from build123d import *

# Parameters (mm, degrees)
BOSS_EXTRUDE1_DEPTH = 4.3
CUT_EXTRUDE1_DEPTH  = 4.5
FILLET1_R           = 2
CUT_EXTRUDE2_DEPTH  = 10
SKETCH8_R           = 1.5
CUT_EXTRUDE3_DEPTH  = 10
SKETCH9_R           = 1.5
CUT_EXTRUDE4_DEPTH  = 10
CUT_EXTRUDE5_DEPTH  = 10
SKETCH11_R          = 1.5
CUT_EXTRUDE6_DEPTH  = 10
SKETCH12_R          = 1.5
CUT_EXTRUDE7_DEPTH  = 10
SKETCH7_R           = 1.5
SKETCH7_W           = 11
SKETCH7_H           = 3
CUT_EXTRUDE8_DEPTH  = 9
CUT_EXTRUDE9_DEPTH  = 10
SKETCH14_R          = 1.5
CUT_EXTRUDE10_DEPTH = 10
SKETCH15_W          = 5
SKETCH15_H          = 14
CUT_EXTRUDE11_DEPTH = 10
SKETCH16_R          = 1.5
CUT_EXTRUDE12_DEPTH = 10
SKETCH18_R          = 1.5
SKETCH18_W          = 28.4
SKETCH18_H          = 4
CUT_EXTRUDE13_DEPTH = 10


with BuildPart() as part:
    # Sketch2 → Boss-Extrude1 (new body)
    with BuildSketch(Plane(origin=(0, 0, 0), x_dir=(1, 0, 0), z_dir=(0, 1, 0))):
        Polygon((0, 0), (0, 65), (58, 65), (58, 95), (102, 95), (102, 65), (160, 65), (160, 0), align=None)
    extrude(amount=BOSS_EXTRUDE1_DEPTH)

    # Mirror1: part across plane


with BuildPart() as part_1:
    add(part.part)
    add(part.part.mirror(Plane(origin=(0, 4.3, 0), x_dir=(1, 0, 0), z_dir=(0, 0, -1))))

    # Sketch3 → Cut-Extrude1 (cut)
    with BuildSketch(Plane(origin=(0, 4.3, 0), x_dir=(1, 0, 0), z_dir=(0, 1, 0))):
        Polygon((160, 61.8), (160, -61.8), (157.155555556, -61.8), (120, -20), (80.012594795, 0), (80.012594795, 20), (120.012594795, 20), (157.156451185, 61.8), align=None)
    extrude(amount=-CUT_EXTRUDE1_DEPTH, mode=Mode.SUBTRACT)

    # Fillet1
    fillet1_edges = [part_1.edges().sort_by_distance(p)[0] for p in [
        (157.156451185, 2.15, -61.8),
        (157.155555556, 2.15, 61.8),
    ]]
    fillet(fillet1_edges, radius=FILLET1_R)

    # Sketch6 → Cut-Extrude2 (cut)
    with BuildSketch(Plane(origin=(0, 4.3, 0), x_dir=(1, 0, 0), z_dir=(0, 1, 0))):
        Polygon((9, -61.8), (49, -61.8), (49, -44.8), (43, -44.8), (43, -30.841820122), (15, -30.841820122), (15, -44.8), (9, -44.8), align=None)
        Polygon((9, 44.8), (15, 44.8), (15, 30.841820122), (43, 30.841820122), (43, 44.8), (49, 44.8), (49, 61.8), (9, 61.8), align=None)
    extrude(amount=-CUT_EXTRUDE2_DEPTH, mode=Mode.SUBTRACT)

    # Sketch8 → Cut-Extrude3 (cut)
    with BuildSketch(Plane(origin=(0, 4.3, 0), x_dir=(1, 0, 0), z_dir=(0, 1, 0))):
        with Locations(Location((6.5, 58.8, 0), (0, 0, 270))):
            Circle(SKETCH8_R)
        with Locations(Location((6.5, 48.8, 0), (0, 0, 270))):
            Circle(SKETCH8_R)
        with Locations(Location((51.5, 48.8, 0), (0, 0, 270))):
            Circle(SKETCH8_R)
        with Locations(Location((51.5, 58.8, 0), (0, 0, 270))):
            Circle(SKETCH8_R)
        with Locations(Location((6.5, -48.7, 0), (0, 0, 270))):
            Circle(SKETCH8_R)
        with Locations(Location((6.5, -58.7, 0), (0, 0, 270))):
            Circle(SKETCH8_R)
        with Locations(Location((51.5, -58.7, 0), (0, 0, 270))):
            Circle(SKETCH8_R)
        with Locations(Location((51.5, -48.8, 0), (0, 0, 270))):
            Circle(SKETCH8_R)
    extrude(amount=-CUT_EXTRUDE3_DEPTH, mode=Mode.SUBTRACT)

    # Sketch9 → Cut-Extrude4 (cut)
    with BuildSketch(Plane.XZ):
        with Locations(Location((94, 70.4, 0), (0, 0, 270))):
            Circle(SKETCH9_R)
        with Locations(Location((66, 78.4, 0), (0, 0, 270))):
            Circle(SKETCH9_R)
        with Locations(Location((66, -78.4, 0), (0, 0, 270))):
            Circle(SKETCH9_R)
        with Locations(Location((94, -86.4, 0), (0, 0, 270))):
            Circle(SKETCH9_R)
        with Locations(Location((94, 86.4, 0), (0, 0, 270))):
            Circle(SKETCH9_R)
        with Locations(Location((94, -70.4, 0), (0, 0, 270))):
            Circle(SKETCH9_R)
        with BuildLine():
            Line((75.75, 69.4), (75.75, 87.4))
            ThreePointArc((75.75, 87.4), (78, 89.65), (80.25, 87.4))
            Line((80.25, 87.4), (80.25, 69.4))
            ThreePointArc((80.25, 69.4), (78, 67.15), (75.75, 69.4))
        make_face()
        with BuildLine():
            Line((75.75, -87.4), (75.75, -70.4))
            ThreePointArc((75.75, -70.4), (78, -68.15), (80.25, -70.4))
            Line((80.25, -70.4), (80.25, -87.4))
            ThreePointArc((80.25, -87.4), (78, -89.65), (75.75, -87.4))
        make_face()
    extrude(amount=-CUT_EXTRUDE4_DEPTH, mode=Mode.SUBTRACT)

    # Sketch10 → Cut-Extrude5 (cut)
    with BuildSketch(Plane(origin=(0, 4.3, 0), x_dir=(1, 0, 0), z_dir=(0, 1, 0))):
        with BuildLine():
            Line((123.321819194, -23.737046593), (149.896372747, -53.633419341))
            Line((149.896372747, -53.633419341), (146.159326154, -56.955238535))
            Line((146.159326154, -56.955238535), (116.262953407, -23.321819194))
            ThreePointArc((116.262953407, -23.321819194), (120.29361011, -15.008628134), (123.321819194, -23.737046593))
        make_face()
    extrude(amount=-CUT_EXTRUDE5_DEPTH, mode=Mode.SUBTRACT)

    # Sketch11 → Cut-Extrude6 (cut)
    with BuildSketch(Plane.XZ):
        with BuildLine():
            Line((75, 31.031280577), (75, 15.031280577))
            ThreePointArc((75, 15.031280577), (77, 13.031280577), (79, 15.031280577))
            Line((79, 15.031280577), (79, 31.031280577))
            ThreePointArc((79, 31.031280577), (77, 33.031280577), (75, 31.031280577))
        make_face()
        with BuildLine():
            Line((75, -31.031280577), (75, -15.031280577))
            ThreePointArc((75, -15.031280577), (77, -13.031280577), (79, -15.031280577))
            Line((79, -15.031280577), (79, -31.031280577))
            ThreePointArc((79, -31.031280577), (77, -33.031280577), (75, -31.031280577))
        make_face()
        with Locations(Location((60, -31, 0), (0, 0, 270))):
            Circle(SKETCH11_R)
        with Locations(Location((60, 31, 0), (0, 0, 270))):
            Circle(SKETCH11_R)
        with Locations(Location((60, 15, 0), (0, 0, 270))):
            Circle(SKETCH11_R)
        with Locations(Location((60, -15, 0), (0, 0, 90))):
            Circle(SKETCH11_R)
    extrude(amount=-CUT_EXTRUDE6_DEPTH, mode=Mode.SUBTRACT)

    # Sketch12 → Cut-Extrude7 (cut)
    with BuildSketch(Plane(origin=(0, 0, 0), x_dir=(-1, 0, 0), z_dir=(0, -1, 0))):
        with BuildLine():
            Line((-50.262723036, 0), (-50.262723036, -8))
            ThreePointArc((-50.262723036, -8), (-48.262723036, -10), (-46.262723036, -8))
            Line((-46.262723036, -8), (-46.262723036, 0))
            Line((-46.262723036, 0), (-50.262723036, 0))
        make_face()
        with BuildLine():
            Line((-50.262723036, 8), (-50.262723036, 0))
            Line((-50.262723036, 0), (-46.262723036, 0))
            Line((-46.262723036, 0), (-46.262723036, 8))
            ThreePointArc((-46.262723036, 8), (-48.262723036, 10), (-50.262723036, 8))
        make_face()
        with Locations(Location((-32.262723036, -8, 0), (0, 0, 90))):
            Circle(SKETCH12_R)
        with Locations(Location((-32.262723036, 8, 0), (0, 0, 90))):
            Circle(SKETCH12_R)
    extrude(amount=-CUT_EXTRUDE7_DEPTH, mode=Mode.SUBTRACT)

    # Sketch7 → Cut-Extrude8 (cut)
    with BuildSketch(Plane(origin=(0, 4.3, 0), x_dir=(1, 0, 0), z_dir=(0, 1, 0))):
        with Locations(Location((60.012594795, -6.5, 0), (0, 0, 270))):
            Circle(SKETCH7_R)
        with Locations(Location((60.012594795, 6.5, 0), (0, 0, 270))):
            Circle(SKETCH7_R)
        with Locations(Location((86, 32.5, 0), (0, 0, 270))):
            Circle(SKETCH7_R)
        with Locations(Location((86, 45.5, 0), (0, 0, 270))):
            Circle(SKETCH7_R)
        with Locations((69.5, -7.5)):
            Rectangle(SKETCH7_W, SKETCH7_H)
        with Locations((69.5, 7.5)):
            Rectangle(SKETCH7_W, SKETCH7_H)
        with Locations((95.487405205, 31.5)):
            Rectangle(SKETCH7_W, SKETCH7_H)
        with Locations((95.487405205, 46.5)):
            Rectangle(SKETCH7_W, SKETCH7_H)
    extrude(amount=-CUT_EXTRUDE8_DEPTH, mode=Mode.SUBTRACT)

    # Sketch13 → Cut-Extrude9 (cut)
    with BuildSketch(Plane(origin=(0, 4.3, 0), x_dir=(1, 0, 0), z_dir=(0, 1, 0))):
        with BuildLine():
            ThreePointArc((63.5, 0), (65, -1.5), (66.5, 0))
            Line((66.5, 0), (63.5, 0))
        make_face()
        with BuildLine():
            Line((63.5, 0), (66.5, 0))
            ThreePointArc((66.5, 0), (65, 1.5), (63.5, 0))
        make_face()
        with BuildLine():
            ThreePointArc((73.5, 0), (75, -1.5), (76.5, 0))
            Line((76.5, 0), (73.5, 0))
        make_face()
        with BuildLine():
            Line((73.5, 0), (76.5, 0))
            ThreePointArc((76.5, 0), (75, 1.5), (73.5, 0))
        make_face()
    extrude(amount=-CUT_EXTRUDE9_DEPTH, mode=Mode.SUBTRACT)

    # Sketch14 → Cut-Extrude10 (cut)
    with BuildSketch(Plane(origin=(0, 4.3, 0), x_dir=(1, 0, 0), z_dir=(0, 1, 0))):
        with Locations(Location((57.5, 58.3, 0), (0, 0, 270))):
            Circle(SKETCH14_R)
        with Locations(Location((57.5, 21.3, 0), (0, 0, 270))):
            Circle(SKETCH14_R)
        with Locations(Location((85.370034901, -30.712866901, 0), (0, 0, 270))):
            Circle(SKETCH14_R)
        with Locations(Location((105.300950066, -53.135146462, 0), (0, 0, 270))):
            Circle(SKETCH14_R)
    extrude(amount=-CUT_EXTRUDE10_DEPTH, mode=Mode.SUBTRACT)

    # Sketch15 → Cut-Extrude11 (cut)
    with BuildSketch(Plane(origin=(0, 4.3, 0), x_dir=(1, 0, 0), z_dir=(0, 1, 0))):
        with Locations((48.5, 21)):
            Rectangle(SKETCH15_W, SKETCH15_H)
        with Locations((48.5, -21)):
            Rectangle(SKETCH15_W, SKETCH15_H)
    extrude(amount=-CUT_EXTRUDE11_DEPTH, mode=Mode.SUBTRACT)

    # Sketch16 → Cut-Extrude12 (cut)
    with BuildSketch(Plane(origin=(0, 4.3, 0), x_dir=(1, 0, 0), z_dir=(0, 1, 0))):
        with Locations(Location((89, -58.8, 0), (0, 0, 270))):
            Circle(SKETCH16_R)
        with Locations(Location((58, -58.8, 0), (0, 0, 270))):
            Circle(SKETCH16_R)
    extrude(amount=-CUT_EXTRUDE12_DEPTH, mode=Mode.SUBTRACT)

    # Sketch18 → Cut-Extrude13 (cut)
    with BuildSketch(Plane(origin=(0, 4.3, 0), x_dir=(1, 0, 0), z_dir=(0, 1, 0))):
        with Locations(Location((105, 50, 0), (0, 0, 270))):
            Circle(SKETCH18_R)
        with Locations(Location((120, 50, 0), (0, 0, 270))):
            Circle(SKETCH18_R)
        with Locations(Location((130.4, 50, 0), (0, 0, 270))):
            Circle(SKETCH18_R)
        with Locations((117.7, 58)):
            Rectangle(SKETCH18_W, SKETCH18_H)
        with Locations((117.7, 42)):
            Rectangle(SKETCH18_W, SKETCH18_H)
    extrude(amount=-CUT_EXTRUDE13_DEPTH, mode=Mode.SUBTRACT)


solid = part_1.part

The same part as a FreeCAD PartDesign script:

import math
import FreeCAD as App
import Part
import Sketcher
Q = App.Units.Quantity


def edges_at(feature, points):
    """Names of the edges that pass closest to the given points."""
    edges = feature.Shape.Edges
    near = lambda p: min(range(len(edges)), key=lambda i: edges[i].distToShape(Part.Vertex(*p))[0])
    return sorted({f"Edge{near(p) + 1}" for p in points})


def add_polygon(sketch, points):
    """Adds a closed chain of lines whose ends are joined by coincident constraints."""
    first, n = sketch.GeometryCount, len(points)
    for a, b in zip(points, points[1:] + points[:1]):
        sketch.addGeometry(Part.LineSegment(App.Vector(*a, 0), App.Vector(*b, 0)), False)
    for i in range(n):
        sketch.addConstraint(Sketcher.Constraint("Coincident", first + i, 2, first + (i + 1) % n, 1))

doc = App.newDocument("Part")
body = doc.addObject("PartDesign::Body", "Body")

# Sketch on XZ plane
sketch1 = doc.addObject("Sketcher::SketchObject", "Sketch")
body.addObject(sketch1)
sketch1.AttachmentSupport = (doc.XZ_Plane, [""])
sketch1.MapMode = "FlatFace"
add_polygon(sketch1, [(0, -65), (0, 0), (160, 0), (160, -65), (102, -65), (102, -95), (58, -95), (58, -65)])  # lines 0-7
sketch1.addConstraint([
    Sketcher.Constraint("Vertical", 0),
    Sketcher.Constraint("Horizontal", 1),
    Sketcher.Constraint("Vertical", 2),
    Sketcher.Constraint("Horizontal", 3),
    Sketcher.Constraint("Vertical", 4),
    Sketcher.Constraint("Horizontal", 5),
    Sketcher.Constraint("Vertical", 6),
    Sketcher.Constraint("Horizontal", 7),
    Sketcher.Constraint("Coincident", 0, 2, -1, 1),
    Sketcher.Constraint("Horizontal", 3, 2, 6, 2),
    Sketcher.Constraint("Equal", 3, 7),
    Sketcher.Constraint("DistanceX", 1, 1, 1, 2, Q("160 mm")),
    Sketcher.Constraint("DistanceX", 3, 2, 3, 1, Q("58 mm")),
    Sketcher.Constraint("DistanceY", 0, 1, 0, 2, Q("65 mm")),
    Sketcher.Constraint("DistanceY", 4, 2, 4, 1, Q("30 mm")),
])
pad1 = doc.addObject("PartDesign::Pad", "Pad")
body.addObject(pad1)
pad1.Profile = sketch1
pad1.Length = 4.3
pad1.Reversed = True
body2 = doc.addObject("PartDesign::Body", "Body001")
doc.recompute()

body2.BaseFeature = body
doc.recompute()

mirroring = doc.addObject("Part::Mirroring", "Mirroring")
mirroring.Source = body
mirroring.Base = App.Vector(0, 4.3, 0)
mirroring.Normal = App.Vector(0, 0, -1)
body3 = doc.addObject("PartDesign::Body", "Body002")
body3.BaseFeature = mirroring
boolean = doc.addObject("PartDesign::Boolean", "Boolean")
body2.addObject(boolean)
boolean.Type = "Fuse"
boolean.addObjects([body3])
doc.recompute()

# Sketch on XZ plane
sketch2 = doc.addObject("Sketcher::SketchObject", "Sketch001")
body2.addObject(sketch2)
sketch2.AttachmentSupport = (doc.getObject("XZ_Plane001"), [""])
sketch2.MapMode = "FlatFace"
sketch2.AttachmentOffset = App.Placement(App.Vector(0, 0, -4.3), App.Rotation())
add_polygon(sketch2, [(160, 61.8), (160, -61.8), (157.2, -61.8), (120, -20), (80, -20), (80, 0), (120, 20), (157.2, 61.8)])  # lines 0-7
sketch2.addConstraint([
    Sketcher.Constraint("Vertical", 0),
    Sketcher.Constraint("Horizontal", 1),
    Sketcher.Constraint("Horizontal", 3),
    Sketcher.Constraint("Vertical", 4),
    Sketcher.Constraint("Horizontal", 7),
    Sketcher.Constraint("PointOnObject", 4, 2, -1),
    Sketcher.Constraint("DistanceX", 3, 2, 3, 1, Q("40 mm")),
    Sketcher.Constraint("DistanceY", 4, 1, 4, 2, Q("20 mm")),
    Sketcher.Constraint("DistanceY", 0, 2, 0, 1, Q("123.6 mm")),
    Sketcher.Constraint("DistanceX", -1, 1, 0, 2, Q("160 mm")),
    Sketcher.Constraint("DistanceX", -1, 1, 5, 2, Q("120 mm")),
    Sketcher.Constraint("DistanceY", -1, 1, 5, 2, Q("20 mm")),
    Sketcher.Constraint("DistanceY", 0, 2, -1, 1, Q("61.8 mm")),
    Sketcher.Constraint("DistanceX", 1, 2, 1, 1, Q("2.843549 mm")),
    Sketcher.Constraint("DistanceX", 7, 1, 7, 2, Q("2.844444 mm")),
    Sketcher.Constraint("DistanceX", 2, 2, 6, 2, Q("37.142961 mm")),
])
pocket1 = doc.addObject("PartDesign::Pocket", "Pocket")
body2.addObject(pocket1)
pocket1.Profile = sketch2
pocket1.Length = 4.5
pocket1.Reversed = True
doc.recompute()

fillet = doc.addObject("PartDesign::Fillet", "Fillet")
body2.addObject(fillet)
fillet.Base = (pocket1, edges_at(pocket1, [(157.156, 2.15, -61.8), (157.156, 2.15, 61.8)]))
fillet.Radius = 2

# Sketch on XZ plane
sketch3 = doc.addObject("Sketcher::SketchObject", "Sketch002")
body2.addObject(sketch3)
sketch3.AttachmentSupport = (doc.getObject("XZ_Plane001"), [""])
sketch3.MapMode = "FlatFace"
sketch3.AttachmentOffset = App.Placement(App.Vector(0, 0, -4.3), App.Rotation())
add_polygon(sketch3, [(9, 62), (49, 62), (49, 45), (43, 45), (43, 31), (15, 31), (15, 45), (9, 45)])  # lines 0-7
add_polygon(sketch3, [(9, -45), (15, -45), (15, -31), (43, -31), (43, -45), (49, -45), (49, -62), (9, -62)])  # lines 8-15
sketch3.addConstraint([
    Sketcher.Constraint("Horizontal", 0),
    Sketcher.Constraint("Vertical", 1),
    Sketcher.Constraint("Horizontal", 2),
    Sketcher.Constraint("Vertical", 3),
    Sketcher.Constraint("Horizontal", 4),
    Sketcher.Constraint("Vertical", 5),
    Sketcher.Constraint("Horizontal", 6),
    Sketcher.Constraint("Vertical", 7),
    Sketcher.Constraint("Horizontal", 8),
    Sketcher.Constraint("Vertical", 9),
    Sketcher.Constraint("Horizontal", 10),
    Sketcher.Constraint("Vertical", 11),
    Sketcher.Constraint("Horizontal", 12),
    Sketcher.Constraint("Vertical", 13),
    Sketcher.Constraint("Horizontal", 14),
    Sketcher.Constraint("Vertical", 15),
    Sketcher.Constraint("Symmetric", 5, 2, 8, 2, -1),
    Sketcher.Constraint("Symmetric", 3, 2, 10, 2, -1),
    Sketcher.Constraint("Symmetric", 1, 2, 12, 2, -1),
    Sketcher.Constraint("Symmetric", 7, 2, 14, 2, -1),
    Sketcher.Constraint("Horizontal", 2, 2, 5, 2),
    Sketcher.Constraint("Equal", 2, 6),
    Sketcher.Constraint("DistanceX", 0, 1, 0, 2, Q("40 mm")),
    Sketcher.Constraint("DistanceX", 2, 2, 2, 1, Q("6 mm")),
    Sketcher.Constraint("DistanceY", 1, 2, 1, 1, Q("17 mm")),
    Sketcher.Constraint("DistanceX", -1, 1, 0, 2, Q("49 mm")),
    Sketcher.Constraint("DistanceY", -1, 1, 0, 2, Q("61.8 mm")),
    Sketcher.Constraint("DistanceY", 3, 2, 3, 1, Q("13.95818 mm")),
])
pocket2 = doc.addObject("PartDesign::Pocket", "Pocket001")
body2.addObject(pocket2)
pocket2.Profile = sketch3
pocket2.Length = 10
pocket2.Reversed = True

# Sketch on XZ plane
sketch4 = doc.addObject("Sketcher::SketchObject", "Sketch003")
body2.addObject(sketch4)
sketch4.AttachmentSupport = (doc.getObject("XZ_Plane001"), [""])
sketch4.MapMode = "FlatFace"
sketch4.AttachmentOffset = App.Placement(App.Vector(0, 0, -4.3), App.Rotation())
sketch4.addGeometry([
    Part.Circle(App.Vector(6.5, -58.8, 0), App.Vector(0, 0, 1), 1.5),  # 0
    Part.Circle(App.Vector(6.5, -48.8, 0), App.Vector(0, 0, 1), 1.5),  # 1
    Part.Circle(App.Vector(51.5, -48.8, 0), App.Vector(0, 0, 1), 1.5),  # 2
    Part.Circle(App.Vector(51.5, -58.8, 0), App.Vector(0, 0, 1), 1.5),  # 3
    Part.Circle(App.Vector(6.5, 48.7, 0), App.Vector(0, 0, 1), 1.5),  # 4
    Part.Circle(App.Vector(6.5, 58.7, 0), App.Vector(0, 0, 1), 1.5),  # 5
    Part.Circle(App.Vector(51.5, 58.7, 0), App.Vector(0, 0, 1), 1.5),  # 6
    Part.Circle(App.Vector(51.5, 48.8, 0), App.Vector(0, 0, 1), 1.5),  # 7
], False)
sketch4.addConstraint([
    Sketcher.Constraint("Equal", 0, 1),
    Sketcher.Constraint("Equal", 1, 2),
    Sketcher.Constraint("Equal", 2, 3),
    Sketcher.Constraint("Equal", 3, 4),
    Sketcher.Constraint("Equal", 4, 5),
    Sketcher.Constraint("Equal", 5, 6),
    Sketcher.Constraint("Equal", 6, 7),
    Sketcher.Constraint("Symmetric", 2, 3, 7, 3, -1),
    Sketcher.Constraint("Horizontal", 1, 3, 2, 3),
    Sketcher.Constraint("Horizontal", 0, 3, 3, 3),
    Sketcher.Constraint("Horizontal", 5, 3, 6, 3),
    Sketcher.Constraint("Vertical", 0, 3, 1, 3),
    Sketcher.Constraint("Vertical", 2, 3, 3, 3),
    Sketcher.Constraint("Vertical", 1, 3, 4, 3),
    Sketcher.Constraint("Vertical", 4, 3, 5, 3),
    Sketcher.Constraint("Vertical", 3, 3, 6, 3),
    Sketcher.Constraint("Diameter", 0, Q("3 mm")),
    Sketcher.Constraint("DistanceY", 0, 3, 1, 3, Q("10 mm")),
    Sketcher.Constraint("DistanceX", 1, 3, 2, 3, Q("45 mm")),
    Sketcher.Constraint("DistanceY", 4, 3, 5, 3, Q("10 mm")),
    Sketcher.Constraint("DistanceX", -1, 1, 0, 3, Q("6.5 mm")),
    Sketcher.Constraint("DistanceY", 0, 3, -1, 1, Q("58.8 mm")),
    Sketcher.Constraint("DistanceY", -1, 1, 4, 3, Q("48.7 mm")),
])
pocket3 = doc.addObject("PartDesign::Pocket", "Pocket002")
body2.addObject(pocket3)
pocket3.Profile = sketch4
pocket3.Length = 10
pocket3.Reversed = True

# Sketch on XZ plane
sketch5 = doc.addObject("Sketcher::SketchObject", "Sketch004")
body2.addObject(sketch5)
sketch5.AttachmentSupport = (doc.getObject("XZ_Plane001"), [""])
sketch5.MapMode = "FlatFace"
sketch5.addGeometry([
    Part.Circle(App.Vector(94, 70.4, 0), App.Vector(0, 0, 1), 1.5),  # 0
    Part.Circle(App.Vector(66, 78.4, 0), App.Vector(0, 0, 1), 1.5),  # 1
    Part.Circle(App.Vector(66, -78.4, 0), App.Vector(0, 0, 1), 1.5),  # 2
    Part.Circle(App.Vector(94, -86.4, 0), App.Vector(0, 0, 1), 1.5),  # 3
    Part.Circle(App.Vector(94, 86.4, 0), App.Vector(0, 0, 1), 1.5),  # 4
    Part.Circle(App.Vector(94, -70.4, 0), App.Vector(0, 0, 1), 1.5),  # 5
    Part.LineSegment(App.Vector(75.8, 87.4, 0), App.Vector(75.8, 69.4, 0)),  # 6
    Part.ArcOfCircle(Part.Circle(App.Vector(78, 69.4, 0), App.Vector(0, 0, 1), 2.2), math.radians(180), math.radians(360)),  # 7
    Part.LineSegment(App.Vector(80.2, 69.4, 0), App.Vector(80.2, 87.4, 0)),  # 8
    Part.ArcOfCircle(Part.Circle(App.Vector(78, 87.4, 0), App.Vector(0, 0, 1), 2.2), math.radians(0), math.radians(180)),  # 9
    Part.LineSegment(App.Vector(75.8, -70.4, 0), App.Vector(75.8, -87.4, 0)),  # 10
    Part.ArcOfCircle(Part.Circle(App.Vector(78, -87.4, 0), App.Vector(0, 0, 1), 2.2), math.radians(180), math.radians(360)),  # 11
    Part.LineSegment(App.Vector(80.2, -87.4, 0), App.Vector(80.2, -70.4, 0)),  # 12
    Part.ArcOfCircle(Part.Circle(App.Vector(78, -70.4, 0), App.Vector(0, 0, 1), 2.2), math.radians(0), math.radians(180)),  # 13
], False)
sketch5.addConstraint([
    Sketcher.Constraint("Tangent", 6, 2, 7, 1),
    Sketcher.Constraint("Tangent", 7, 2, 8, 1),
    Sketcher.Constraint("Tangent", 8, 2, 9, 1),
    Sketcher.Constraint("Tangent", 9, 2, 6, 1),
    Sketcher.Constraint("Tangent", 10, 2, 11, 1),
    Sketcher.Constraint("Tangent", 11, 2, 12, 1),
    Sketcher.Constraint("Tangent", 12, 2, 13, 1),
    Sketcher.Constraint("Tangent", 13, 2, 10, 1),
    Sketcher.Constraint("Vertical", 6),
    Sketcher.Constraint("Vertical", 8),
    Sketcher.Constraint("Vertical", 10),
    Sketcher.Constraint("Vertical", 12),
    Sketcher.Constraint("Equal", 0, 1),
    Sketcher.Constraint("Equal", 1, 2),
    Sketcher.Constraint("Equal", 2, 3),
    Sketcher.Constraint("Equal", 3, 4),
    Sketcher.Constraint("Equal", 4, 5),
    Sketcher.Constraint("Equal", 9, 11),
    Sketcher.Constraint("Symmetric", 1, 3, 2, 3, -1),
    Sketcher.Constraint("Symmetric", 3, 3, 4, 3, -1),
    Sketcher.Constraint("Symmetric", 0, 3, 5, 3, -1),
    Sketcher.Constraint("Symmetric", 9, 3, 11, 3, -1),
    Sketcher.Constraint("Horizontal", 5, 3, 13, 3),
    Sketcher.Constraint("Vertical", 0, 3, 3, 3),
    Sketcher.Constraint("Diameter", 0, Q("3 mm")),
    Sketcher.Constraint("DistanceY", 6, 2, 6, 1, Q("18 mm")),
    Sketcher.Constraint("DistanceY", 10, 2, 10, 1, Q("17 mm")),
    Sketcher.Constraint("Radius", 7, Q("2.25 mm")),
    Sketcher.Constraint("DistanceX", -1, 1, 0, 3, Q("94 mm")),
    Sketcher.Constraint("DistanceX", -1, 1, 1, 3, Q("66 mm")),
    Sketcher.Constraint("DistanceX", -1, 1, 7, 3, Q("78 mm")),
    Sketcher.Constraint("DistanceY", 0, 3, 1, 3, Q("8 mm")),
    Sketcher.Constraint("DistanceY", 3, 3, 2, 3, Q("8 mm")),
    Sketcher.Constraint("DistanceY", -1, 1, 0, 3, Q("70.4 mm")),
])
pocket4 = doc.addObject("PartDesign::Pocket", "Pocket003")
body2.addObject(pocket4)
pocket4.Profile = sketch5
pocket4.Length = 10

# Sketch on XZ plane
sketch6 = doc.addObject("Sketcher::SketchObject", "Sketch005")
body2.addObject(sketch6)
sketch6.AttachmentSupport = (doc.getObject("XZ_Plane001"), [""])
sketch6.MapMode = "FlatFace"
sketch6.AttachmentOffset = App.Placement(App.Vector(0, 0, -4.3), App.Rotation())
sketch6.addGeometry([
    Part.LineSegment(App.Vector(149.9, 53.6, 0), App.Vector(123.3, 23.7, 0)),
    Part.ArcOfCircle(Part.Circle(App.Vector(120, 20, 0), App.Vector(0, 0, 1), 5), math.radians(138), math.radians(408)),
    Part.LineSegment(App.Vector(116.3, 23.3, 0), App.Vector(146.2, 57, 0)),
    Part.LineSegment(App.Vector(146.2, 57, 0), App.Vector(149.9, 53.6, 0)),
], False)
sketch6.addConstraint([
    Sketcher.Constraint("Coincident", 0, 2, 1, 2),
    Sketcher.Constraint("Tangent", 1, 1, 2, 1),
    Sketcher.Constraint("Coincident", 2, 2, 3, 1),
    Sketcher.Constraint("Coincident", 3, 2, 0, 1),
    Sketcher.Constraint("Parallel", 0, 2),
    Sketcher.Constraint("Perpendicular", 2, 3),
    Sketcher.Constraint("Radius", 1, Q("5 mm")),
    Sketcher.Constraint("Distance", 0, Q("40 mm")),
    Sketcher.Constraint("Distance", 3, Q("5 mm")),
    Sketcher.Constraint("DistanceX", -1, 1, 1, 3, Q("120 mm")),
    Sketcher.Constraint("DistanceY", -1, 1, 1, 3, Q("20 mm")),
    Sketcher.Constraint("DistanceY", 1, 1, 3, 2, Q("30.3116 mm")),
])
pocket5 = doc.addObject("PartDesign::Pocket", "Pocket004")
body2.addObject(pocket5)
pocket5.Profile = sketch6
pocket5.Length = 10
pocket5.Reversed = True

# Sketch on XZ plane
sketch7 = doc.addObject("Sketcher::SketchObject", "Sketch006")
body2.addObject(sketch7)
sketch7.AttachmentSupport = (doc.getObject("XZ_Plane001"), [""])
sketch7.MapMode = "FlatFace"
sketch7.addGeometry([
    Part.LineSegment(App.Vector(75, 31, 0), App.Vector(75, 15, 0)),  # 0
    Part.ArcOfCircle(Part.Circle(App.Vector(77, 15, 0), App.Vector(0, 0, 1), 2), math.radians(180), math.radians(360)),  # 1
    Part.LineSegment(App.Vector(79, 15, 0), App.Vector(79, 31, 0)),  # 2
    Part.ArcOfCircle(Part.Circle(App.Vector(77, 31, 0), App.Vector(0, 0, 1), 2), math.radians(0), math.radians(180)),  # 3
    Part.LineSegment(App.Vector(75, -15, 0), App.Vector(75, -31, 0)),  # 4
    Part.ArcOfCircle(Part.Circle(App.Vector(77, -31, 0), App.Vector(0, 0, 1), 2), math.radians(180), math.radians(360)),  # 5
    Part.LineSegment(App.Vector(79, -31, 0), App.Vector(79, -15, 0)),  # 6
    Part.ArcOfCircle(Part.Circle(App.Vector(77, -15, 0), App.Vector(0, 0, 1), 2), math.radians(0), math.radians(180)),  # 7
    Part.Circle(App.Vector(60, -31, 0), App.Vector(0, 0, 1), 1.5),  # 8
    Part.Circle(App.Vector(60, 31, 0), App.Vector(0, 0, 1), 1.5),  # 9
    Part.Circle(App.Vector(60, 15, 0), App.Vector(0, 0, 1), 1.5),  # 10
    Part.Circle(App.Vector(60, -15, 0), App.Vector(0, 0, 1), 1.5),  # 11
], False)
sketch7.addConstraint([
    Sketcher.Constraint("Tangent", 0, 2, 1, 1),
    Sketcher.Constraint("Tangent", 1, 2, 2, 1),
    Sketcher.Constraint("Tangent", 2, 2, 3, 1),
    Sketcher.Constraint("Tangent", 3, 2, 0, 1),
    Sketcher.Constraint("Tangent", 4, 2, 5, 1),
    Sketcher.Constraint("Tangent", 5, 2, 6, 1),
    Sketcher.Constraint("Tangent", 6, 2, 7, 1),
    Sketcher.Constraint("Tangent", 7, 2, 4, 1),
    Sketcher.Constraint("Vertical", 0),
    Sketcher.Constraint("Vertical", 2),
    Sketcher.Constraint("Vertical", 4),
    Sketcher.Constraint("Vertical", 6),
    Sketcher.Constraint("Equal", 3, 5),
    Sketcher.Constraint("Equal", 8, 9),
    Sketcher.Constraint("Equal", 9, 10),
    Sketcher.Constraint("Equal", 10, 11),
    Sketcher.Constraint("Symmetric", 3, 3, 5, 3, -1),
    Sketcher.Constraint("Symmetric", 8, 3, 9, 3, -1),
    Sketcher.Constraint("Symmetric", 10, 3, 11, 3, -1),
    Sketcher.Constraint("Vertical", 9, 3, 10, 3),
    Sketcher.Constraint("Equal", 2, 4),
    Sketcher.Constraint("Diameter", 8, Q("3 mm")),
    Sketcher.Constraint("Radius", 1, Q("2 mm")),
    Sketcher.Constraint("DistanceY", 0, 2, 0, 1, Q("16 mm")),
    Sketcher.Constraint("DistanceX", -1, 1, 1, 3, Q("77 mm")),
    Sketcher.Constraint("DistanceX", -1, 1, 8, 3, Q("60 mm")),
    Sketcher.Constraint("DistanceY", 8, 3, -1, 1, Q("31 mm")),
    Sketcher.Constraint("DistanceY", -1, 1, 10, 3, Q("15 mm")),
    Sketcher.Constraint("DistanceY", -1, 1, 1, 3, Q("15.031281 mm")),
])
pocket6 = doc.addObject("PartDesign::Pocket", "Pocket005")
body2.addObject(pocket6)
pocket6.Profile = sketch7
pocket6.Length = 10

# Sketch on XZ plane
sketch8 = doc.addObject("Sketcher::SketchObject", "Sketch007")
body2.addObject(sketch8)
sketch8.AttachmentSupport = (doc.getObject("XZ_Plane001"), [""])
sketch8.MapMode = "FlatFace"
sketch8.addGeometry([
    Part.ArcOfCircle(Part.Circle(App.Vector(48.3, 8, 0), App.Vector(0, 0, 1), 2), math.radians(0), math.radians(180)),  # 0
    Part.LineSegment(App.Vector(46.3, 8, 0), App.Vector(46.3, -8, 0)),  # 1
    Part.ArcOfCircle(Part.Circle(App.Vector(48.3, -8, 0), App.Vector(0, 0, 1), 2), math.radians(180), math.radians(360)),  # 2
    Part.LineSegment(App.Vector(50.3, -8, 0), App.Vector(50.3, 8, 0)),  # 3
    Part.Circle(App.Vector(32.3, 8, 0), App.Vector(0, 0, 1), 1.5),  # 4
    Part.Circle(App.Vector(32.3, -8, 0), App.Vector(0, 0, 1), 1.5),  # 5
], False)
sketch8.addConstraint([
    Sketcher.Constraint("Tangent", 0, 2, 1, 1),
    Sketcher.Constraint("Tangent", 1, 2, 2, 1),
    Sketcher.Constraint("Tangent", 2, 2, 3, 1),
    Sketcher.Constraint("Tangent", 3, 2, 0, 1),
    Sketcher.Constraint("Vertical", 1),
    Sketcher.Constraint("Vertical", 3),
    Sketcher.Constraint("Equal", 4, 5),
    Sketcher.Constraint("Symmetric", 4, 3, 5, 3, -1),
    Sketcher.Constraint("Horizontal", 0, 3, 4, 3),
    Sketcher.Constraint("Horizontal", 2, 3, 5, 3),
    Sketcher.Constraint("Diameter", 4, Q("3 mm")),
    Sketcher.Constraint("Radius", 0, Q("2 mm")),
    Sketcher.Constraint("DistanceY", 1, 2, 1, 1, Q("16 mm")),
    Sketcher.Constraint("DistanceX", 4, 3, 0, 3, Q("16 mm")),
    Sketcher.Constraint("DistanceX", -1, 1, 0, 3, Q("48.262723 mm")),
])
pocket7 = doc.addObject("PartDesign::Pocket", "Pocket006")
body2.addObject(pocket7)
pocket7.Profile = sketch8
pocket7.Length = 10

# Sketch on XZ plane
sketch9 = doc.addObject("Sketcher::SketchObject", "Sketch008")
body2.addObject(sketch9)
sketch9.AttachmentSupport = (doc.getObject("XZ_Plane001"), [""])
sketch9.MapMode = "FlatFace"
sketch9.AttachmentOffset = App.Placement(App.Vector(0, 0, -4.3), App.Rotation())
sketch9.addGeometry(Part.Circle(App.Vector(60, 6.5, 0), App.Vector(0, 0, 1), 1.5), False)  # 0
sketch9.addGeometry(Part.Circle(App.Vector(60, -6.5, 0), App.Vector(0, 0, 1), 1.5), False)  # 1
sketch9.addGeometry(Part.Circle(App.Vector(86, -32.5, 0), App.Vector(0, 0, 1), 1.5), False)  # 2
sketch9.addGeometry(Part.Circle(App.Vector(86, -45.5, 0), App.Vector(0, 0, 1), 1.5), False)  # 3
add_polygon(sketch9, [(64, 6), (64, 9), (75, 9), (75, 6)])  # lines 4-7
add_polygon(sketch9, [(64, -9), (64, -6), (75, -6), (75, -9)])  # lines 8-11
add_polygon(sketch9, [(90, -33), (90, -30), (101, -30), (101, -33)])  # lines 12-15
add_polygon(sketch9, [(90, -48), (90, -45), (101, -45), (101, -48)])  # lines 16-19
sketch9.addConstraint([
    Sketcher.Constraint("Vertical", 4),
    Sketcher.Constraint("Horizontal", 5),
    Sketcher.Constraint("Vertical", 6),
    Sketcher.Constraint("Horizontal", 7),
    Sketcher.Constraint("Vertical", 8),
    Sketcher.Constraint("Horizontal", 9),
    Sketcher.Constraint("Vertical", 10),
    Sketcher.Constraint("Horizontal", 11),
    Sketcher.Constraint("Vertical", 12),
    Sketcher.Constraint("Horizontal", 13),
    Sketcher.Constraint("Vertical", 14),
    Sketcher.Constraint("Horizontal", 15),
    Sketcher.Constraint("Vertical", 16),
    Sketcher.Constraint("Horizontal", 17),
    Sketcher.Constraint("Vertical", 18),
    Sketcher.Constraint("Horizontal", 19),
    Sketcher.Constraint("Equal", 0, 1),
    Sketcher.Constraint("Equal", 1, 2),
    Sketcher.Constraint("Equal", 2, 3),
    Sketcher.Constraint("Symmetric", 0, 3, 1, 3, -1),
    Sketcher.Constraint("Symmetric", 7, 2, 8, 2, -1),
    Sketcher.Constraint("Symmetric", 5, 2, 10, 2, -1),
    Sketcher.Constraint("Vertical", 2, 3, 3, 3),
    Sketcher.Constraint("Vertical", 15, 2, 16, 2),
    Sketcher.Constraint("Vertical", 14, 2, 17, 2),
    Sketcher.Constraint("Equal", 11, 13),
    Sketcher.Constraint("Equal", 10, 12),
    Sketcher.Constraint("Equal", 14, 16),
    Sketcher.Constraint("Diameter", 0, Q("3 mm")),
    Sketcher.Constraint("DistanceX", 5, 1, 5, 2, Q("11 mm")),
    Sketcher.Constraint("DistanceY", 4, 1, 4, 2, Q("3 mm")),
    Sketcher.Constraint("DistanceX", -1, 1, 2, 3, Q("86 mm")),
    Sketcher.Constraint("DistanceX", -1, 1, 4, 2, Q("64 mm")),
    Sketcher.Constraint("DistanceY", -1, 1, 4, 2, Q("9 mm")),
    Sketcher.Constraint("DistanceY", 12, 2, -1, 1, Q("30 mm")),
    Sketcher.Constraint("DistanceY", 16, 2, -1, 1, Q("45 mm")),
    Sketcher.Constraint("DistanceY", 1, 3, 0, 3, Q("13 mm")),
    Sketcher.Constraint("DistanceY", 2, 3, 1, 3, Q("26 mm")),
    Sketcher.Constraint("DistanceY", 3, 3, 2, 3, Q("13 mm")),
    Sketcher.Constraint("DistanceX", -1, 1, 0, 3, Q("60.012595 mm")),
    Sketcher.Constraint("DistanceX", -1, 1, 12, 2, Q("89.987405 mm")),
])
pocket8 = doc.addObject("PartDesign::Pocket", "Pocket007")
body2.addObject(pocket8)
pocket8.Profile = sketch9
pocket8.Length = 9
pocket8.Reversed = True

# Sketch on XZ plane
sketch10 = doc.addObject("Sketcher::SketchObject", "Sketch009")
body2.addObject(sketch10)
sketch10.AttachmentSupport = (doc.getObject("XZ_Plane001"), [""])
sketch10.MapMode = "FlatFace"
sketch10.AttachmentOffset = App.Placement(App.Vector(0, 0, -4.3), App.Rotation())
sketch10.addGeometry([
    Part.Circle(App.Vector(65, 0, 0), App.Vector(0, 0, 1), 1.5),
    Part.Circle(App.Vector(75, 0, 0), App.Vector(0, 0, 1), 1.5),
], False)
sketch10.addConstraint([
    Sketcher.Constraint("Equal", 0, 1),
    Sketcher.Constraint("PointOnObject", 0, 3, -1),
    Sketcher.Constraint("PointOnObject", 1, 3, -1),
    Sketcher.Constraint("Diameter", 0, Q("3 mm")),
    Sketcher.Constraint("DistanceX", -1, 1, 0, 3, Q("65 mm")),
    Sketcher.Constraint("DistanceX", -1, 1, 1, 3, Q("75 mm")),
])
pocket9 = doc.addObject("PartDesign::Pocket", "Pocket008")
body2.addObject(pocket9)
pocket9.Profile = sketch10
pocket9.Length = 10
pocket9.Reversed = True

# Sketch on XZ plane
sketch11 = doc.addObject("Sketcher::SketchObject", "Sketch010")
body2.addObject(sketch11)
sketch11.AttachmentSupport = (doc.getObject("XZ_Plane001"), [""])
sketch11.MapMode = "FlatFace"
sketch11.AttachmentOffset = App.Placement(App.Vector(0, 0, -4.3), App.Rotation())
sketch11.addGeometry([
    Part.Circle(App.Vector(57.5, -58.3, 0), App.Vector(0, 0, 1), 1.5),
    Part.Circle(App.Vector(57.5, -21.3, 0), App.Vector(0, 0, 1), 1.5),
    Part.Circle(App.Vector(85.4, 30.7, 0), App.Vector(0, 0, 1), 1.5),
    Part.Circle(App.Vector(105.3, 53.1, 0), App.Vector(0, 0, 1), 1.5),
], False)
sketch11.addConstraint([
    Sketcher.Constraint("Equal", 0, 1),
    Sketcher.Constraint("Equal", 1, 2),
    Sketcher.Constraint("Equal", 2, 3),
    Sketcher.Constraint("Vertical", 0, 3, 1, 3),
    Sketcher.Constraint("Diameter", 0, Q("3 mm")),
    Sketcher.Constraint("DistanceY", 0, 3, 1, 3, Q("37 mm")),
    Sketcher.Constraint("DistanceX", -1, 1, 0, 3, Q("57.5 mm")),
    Sketcher.Constraint("DistanceY", 0, 3, -1, 1, Q("58.3 mm")),
    Sketcher.Constraint("DistanceX", -1, 1, 3, 3, Q("105.30095 mm")),
    Sketcher.Constraint("DistanceY", 2, 3, 3, 3, Q("22.42228 mm")),
    Sketcher.Constraint("DistanceX", -1, 1, 2, 3, Q("85.370035 mm")),
    Sketcher.Constraint("DistanceY", -1, 1, 2, 3, Q("30.712867 mm")),
])
pocket10 = doc.addObject("PartDesign::Pocket", "Pocket009")
body2.addObject(pocket10)
pocket10.Profile = sketch11
pocket10.Length = 10
pocket10.Reversed = True

# Sketch on XZ plane
sketch12 = doc.addObject("Sketcher::SketchObject", "Sketch011")
body2.addObject(sketch12)
sketch12.AttachmentSupport = (doc.getObject("XZ_Plane001"), [""])
sketch12.MapMode = "FlatFace"
sketch12.AttachmentOffset = App.Placement(App.Vector(0, 0, -4.3), App.Rotation())
add_polygon(sketch12, [(46, -28), (46, -14), (51, -14), (51, -28)])  # lines 0-3
add_polygon(sketch12, [(46, 14), (46, 28), (51, 28), (51, 14)])  # lines 4-7
sketch12.addConstraint([
    Sketcher.Constraint("Vertical", 0),
    Sketcher.Constraint("Horizontal", 1),
    Sketcher.Constraint("Vertical", 2),
    Sketcher.Constraint("Horizontal", 3),
    Sketcher.Constraint("Vertical", 4),
    Sketcher.Constraint("Horizontal", 5),
    Sketcher.Constraint("Vertical", 6),
    Sketcher.Constraint("Horizontal", 7),
    Sketcher.Constraint("Symmetric", 3, 2, 4, 2, -1),
    Sketcher.Constraint("Symmetric", 1, 2, 6, 2, -1),
    Sketcher.Constraint("DistanceX", 1, 1, 1, 2, Q("5 mm")),
    Sketcher.Constraint("DistanceY", 0, 1, 0, 2, Q("14 mm")),
    Sketcher.Constraint("DistanceX", -1, 1, 0, 2, Q("46 mm")),
    Sketcher.Constraint("DistanceY", 0, 2, -1, 1, Q("14 mm")),
])
pocket11 = doc.addObject("PartDesign::Pocket", "Pocket010")
body2.addObject(pocket11)
pocket11.Profile = sketch12
pocket11.Length = 10
pocket11.Reversed = True

# Sketch on XZ plane
sketch13 = doc.addObject("Sketcher::SketchObject", "Sketch012")
body2.addObject(sketch13)
sketch13.AttachmentSupport = (doc.getObject("XZ_Plane001"), [""])
sketch13.MapMode = "FlatFace"
sketch13.AttachmentOffset = App.Placement(App.Vector(0, 0, -4.3), App.Rotation())
sketch13.addGeometry([
    Part.Circle(App.Vector(89, 58.8, 0), App.Vector(0, 0, 1), 1.5),
    Part.Circle(App.Vector(58, 58.8, 0), App.Vector(0, 0, 1), 1.5),
], False)
sketch13.addConstraint([
    Sketcher.Constraint("Equal", 0, 1),
    Sketcher.Constraint("Horizontal", 0, 3, 1, 3),
    Sketcher.Constraint("Diameter", 0, Q("3 mm")),
    Sketcher.Constraint("DistanceX", -1, 1, 0, 3, Q("89 mm")),
    Sketcher.Constraint("DistanceX", -1, 1, 1, 3, Q("58 mm")),
    Sketcher.Constraint("DistanceY", -1, 1, 0, 3, Q("58.8 mm")),
])
pocket12 = doc.addObject("PartDesign::Pocket", "Pocket011")
body2.addObject(pocket12)
pocket12.Profile = sketch13
pocket12.Length = 10
pocket12.Reversed = True

# Sketch on XZ plane
sketch14 = doc.addObject("Sketcher::SketchObject", "Sketch013")
body2.addObject(sketch14)
sketch14.AttachmentSupport = (doc.getObject("XZ_Plane001"), [""])
sketch14.MapMode = "FlatFace"
sketch14.AttachmentOffset = App.Placement(App.Vector(0, 0, -4.3), App.Rotation())
sketch14.addGeometry(Part.Circle(App.Vector(105, -50, 0), App.Vector(0, 0, 1), 1.5), False)  # 0
sketch14.addGeometry(Part.Circle(App.Vector(120, -50, 0), App.Vector(0, 0, 1), 1.5), False)  # 1
sketch14.addGeometry(Part.Circle(App.Vector(130.4, -50, 0), App.Vector(0, 0, 1), 1.5), False)  # 2
add_polygon(sketch14, [(103.5, -60), (103.5, -56), (131.9, -56), (131.9, -60)])  # lines 3-6
add_polygon(sketch14, [(103.5, -44), (103.5, -40), (131.9, -40), (131.9, -44)])  # lines 7-10
sketch14.addConstraint([
    Sketcher.Constraint("Vertical", 3),
    Sketcher.Constraint("Horizontal", 4),
    Sketcher.Constraint("Vertical", 5),
    Sketcher.Constraint("Horizontal", 6),
    Sketcher.Constraint("Vertical", 7),
    Sketcher.Constraint("Horizontal", 8),
    Sketcher.Constraint("Vertical", 9),
    Sketcher.Constraint("Horizontal", 10),
    Sketcher.Constraint("Equal", 0, 1),
    Sketcher.Constraint("Equal", 1, 2),
    Sketcher.Constraint("Horizontal", 0, 3, 1, 3),
    Sketcher.Constraint("Horizontal", 1, 3, 2, 3),
    Sketcher.Constraint("Vertical", 6, 2, 7, 2),
    Sketcher.Constraint("Vertical", 5, 2, 8, 2),
    Sketcher.Constraint("Equal", 5, 7),
    Sketcher.Constraint("Diameter", 0, Q("3 mm")),
    Sketcher.Constraint("DistanceY", 3, 1, 3, 2, Q("4 mm")),
    Sketcher.Constraint("DistanceX", 4, 1, 4, 2, Q("28.4 mm")),
    Sketcher.Constraint("DistanceX", -1, 1, 0, 3, Q("105 mm")),
    Sketcher.Constraint("DistanceY", 0, 3, -1, 1, Q("50 mm")),
    Sketcher.Constraint("DistanceX", -1, 1, 1, 3, Q("120 mm")),
    Sketcher.Constraint("DistanceY", 3, 2, -1, 1, Q("56 mm")),
    Sketcher.Constraint("DistanceY", 7, 2, -1, 1, Q("40 mm")),
    Sketcher.Constraint("DistanceX", -1, 1, 2, 3, Q("130.4 mm")),
    Sketcher.Constraint("DistanceX", -1, 1, 3, 2, Q("103.5 mm")),
])
pocket13 = doc.addObject("PartDesign::Pocket", "Pocket012")
body2.addObject(pocket13)
pocket13.Profile = sketch14
pocket13.Length = 10
pocket13.Reversed = True
mirroring.Visibility = False

doc.recompute()
